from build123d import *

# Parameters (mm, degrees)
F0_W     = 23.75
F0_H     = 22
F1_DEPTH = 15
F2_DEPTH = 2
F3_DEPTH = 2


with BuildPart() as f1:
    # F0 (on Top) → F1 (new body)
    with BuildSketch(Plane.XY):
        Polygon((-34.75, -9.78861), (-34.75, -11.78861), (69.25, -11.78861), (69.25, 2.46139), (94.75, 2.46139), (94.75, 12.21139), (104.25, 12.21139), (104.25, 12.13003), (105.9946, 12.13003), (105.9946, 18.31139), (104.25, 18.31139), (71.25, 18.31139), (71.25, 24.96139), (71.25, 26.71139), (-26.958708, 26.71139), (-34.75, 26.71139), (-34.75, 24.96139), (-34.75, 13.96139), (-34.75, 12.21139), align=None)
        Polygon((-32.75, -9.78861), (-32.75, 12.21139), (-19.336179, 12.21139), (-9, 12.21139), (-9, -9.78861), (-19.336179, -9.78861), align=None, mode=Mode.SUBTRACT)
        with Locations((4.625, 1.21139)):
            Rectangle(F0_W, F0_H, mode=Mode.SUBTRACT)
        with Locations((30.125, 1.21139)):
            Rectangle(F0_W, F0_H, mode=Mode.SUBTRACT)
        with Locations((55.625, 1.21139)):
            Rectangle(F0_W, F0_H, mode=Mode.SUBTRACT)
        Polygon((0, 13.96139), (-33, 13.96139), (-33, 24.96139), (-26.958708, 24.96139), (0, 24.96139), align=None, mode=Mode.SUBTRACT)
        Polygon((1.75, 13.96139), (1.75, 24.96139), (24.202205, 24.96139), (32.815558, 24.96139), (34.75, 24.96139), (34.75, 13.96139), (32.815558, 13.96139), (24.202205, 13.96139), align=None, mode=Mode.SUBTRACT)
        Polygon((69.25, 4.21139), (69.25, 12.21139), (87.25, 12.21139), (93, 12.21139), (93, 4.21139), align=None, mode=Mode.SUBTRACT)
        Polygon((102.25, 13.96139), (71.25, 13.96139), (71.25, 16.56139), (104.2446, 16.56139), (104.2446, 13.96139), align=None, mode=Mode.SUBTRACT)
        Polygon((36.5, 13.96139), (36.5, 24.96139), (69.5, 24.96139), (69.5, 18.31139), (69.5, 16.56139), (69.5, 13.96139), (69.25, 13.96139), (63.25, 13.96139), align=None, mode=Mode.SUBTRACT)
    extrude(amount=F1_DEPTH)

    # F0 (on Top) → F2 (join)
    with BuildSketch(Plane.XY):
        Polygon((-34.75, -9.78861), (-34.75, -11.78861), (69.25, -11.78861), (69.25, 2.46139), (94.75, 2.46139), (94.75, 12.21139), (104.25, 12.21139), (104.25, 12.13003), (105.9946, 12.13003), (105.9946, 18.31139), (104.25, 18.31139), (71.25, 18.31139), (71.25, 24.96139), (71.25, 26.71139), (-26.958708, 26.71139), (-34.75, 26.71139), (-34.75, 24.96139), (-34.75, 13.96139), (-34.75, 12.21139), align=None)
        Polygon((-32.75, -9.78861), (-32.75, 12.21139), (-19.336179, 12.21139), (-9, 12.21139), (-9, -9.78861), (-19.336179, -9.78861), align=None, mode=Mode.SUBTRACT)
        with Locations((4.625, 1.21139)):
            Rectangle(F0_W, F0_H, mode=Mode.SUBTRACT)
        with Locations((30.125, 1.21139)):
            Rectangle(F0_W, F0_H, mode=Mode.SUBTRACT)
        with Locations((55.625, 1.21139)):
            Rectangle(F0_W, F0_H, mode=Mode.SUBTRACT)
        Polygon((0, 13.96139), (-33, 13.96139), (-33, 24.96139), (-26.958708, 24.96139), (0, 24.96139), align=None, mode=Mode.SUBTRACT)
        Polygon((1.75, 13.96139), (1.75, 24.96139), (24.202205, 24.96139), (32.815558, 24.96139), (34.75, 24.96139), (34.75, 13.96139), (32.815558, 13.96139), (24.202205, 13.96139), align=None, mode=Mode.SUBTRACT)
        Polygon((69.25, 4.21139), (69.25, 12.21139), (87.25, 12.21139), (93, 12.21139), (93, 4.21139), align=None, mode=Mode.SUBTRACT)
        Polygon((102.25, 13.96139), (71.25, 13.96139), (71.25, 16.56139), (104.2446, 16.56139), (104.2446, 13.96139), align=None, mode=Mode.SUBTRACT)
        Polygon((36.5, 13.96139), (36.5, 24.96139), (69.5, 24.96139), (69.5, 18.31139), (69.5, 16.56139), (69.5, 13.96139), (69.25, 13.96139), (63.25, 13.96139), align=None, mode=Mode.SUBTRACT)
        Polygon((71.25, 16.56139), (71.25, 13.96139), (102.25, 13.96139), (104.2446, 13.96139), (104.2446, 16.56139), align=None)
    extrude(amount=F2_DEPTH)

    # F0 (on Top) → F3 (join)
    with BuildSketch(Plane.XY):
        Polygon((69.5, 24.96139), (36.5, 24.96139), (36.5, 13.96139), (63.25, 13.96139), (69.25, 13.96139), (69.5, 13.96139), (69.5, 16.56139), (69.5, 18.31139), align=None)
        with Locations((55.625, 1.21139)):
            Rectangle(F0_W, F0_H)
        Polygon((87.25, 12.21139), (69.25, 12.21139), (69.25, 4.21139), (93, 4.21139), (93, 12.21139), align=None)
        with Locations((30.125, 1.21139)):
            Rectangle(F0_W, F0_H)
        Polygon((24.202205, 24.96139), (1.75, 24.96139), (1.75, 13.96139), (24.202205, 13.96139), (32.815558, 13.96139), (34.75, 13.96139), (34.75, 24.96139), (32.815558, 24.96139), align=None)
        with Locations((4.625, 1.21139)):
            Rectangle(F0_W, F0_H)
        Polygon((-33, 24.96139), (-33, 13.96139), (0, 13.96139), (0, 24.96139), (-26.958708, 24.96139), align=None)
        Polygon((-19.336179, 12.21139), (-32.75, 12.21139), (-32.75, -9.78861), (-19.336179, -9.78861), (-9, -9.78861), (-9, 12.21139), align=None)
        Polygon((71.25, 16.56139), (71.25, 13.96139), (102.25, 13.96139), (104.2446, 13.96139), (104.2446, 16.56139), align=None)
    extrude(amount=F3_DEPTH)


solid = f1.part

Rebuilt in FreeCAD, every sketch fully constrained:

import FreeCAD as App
import Part
import Sketcher


def add_polygon(sketch, points):
    """Adds a closed chain of lines whose ends are joined by coincident constraints."""
    first, n = sketch.GeometryCount, len(points)
    for a, b in zip(points, points[1:] + points[:1]):
        sketch.addGeometry(Part.LineSegment(App.Vector(*a, 0), App.Vector(*b, 0)), False)
    for i in range(n):
        sketch.addConstraint(Sketcher.Constraint("Coincident", first + i, 2, first + (i + 1) % n, 1))

doc = App.newDocument("Part")
body = doc.addObject("PartDesign::Body", "Body")

# Sketch on XY plane
sketch1 = body.newObject("Sketcher::SketchObject", "Sketch")
sketch1.AttachmentSupport = (doc.getObject("XY_Plane"), [""])
sketch1.MapMode = "FlatFace"
add_polygon(sketch1, [(-34.75, -11.78861), (69.25, -11.78861), (69.25, 2.46139), (94.75, 2.46139), (94.75, 12.21139), (104.25, 12.21139), (104.25, 12.13003), (105.9946, 12.13003), (105.9946, 18.31139), (71.25, 18.31139), (71.25, 26.71139), (-34.75, 26.71139)])  # lines 0-11
add_polygon(sketch1, [(-9, -9.78861), (-32.75, -9.78861), (-32.75, 12.21139), (-9, 12.21139)])  # lines 12-15
add_polygon(sketch1, [(16.5, -9.78861), (-7.25, -9.78861), (-7.25, 12.21139), (16.5, 12.21139)])  # lines 16-19
add_polygon(sketch1, [(42, -9.78861), (18.25, -9.78861), (18.25, 12.21139), (42, 12.21139)])  # lines 20-23
add_polygon(sketch1, [(67.5, -9.78861), (43.75, -9.78861), (43.75, 12.21139), (67.5, 12.21139)])  # lines 24-27
add_polygon(sketch1, [(0, 24.96139), (0, 13.96139), (-33, 13.96139), (-33, 24.96139)])  # lines 28-31
add_polygon(sketch1, [(34.75, 13.96139), (1.75, 13.96139), (1.75, 24.96139), (34.75, 24.96139)])  # lines 32-35
add_polygon(sketch1, [(93, 4.21139), (69.25, 4.21139), (69.25, 12.21139), (93, 12.21139)])  # lines 36-39
add_polygon(sketch1, [(104.2446, 13.96139), (71.25, 13.96139), (71.25, 16.56139), (104.2446, 16.56139)])  # lines 40-43
add_polygon(sketch1, [(69.5, 13.96139), (36.5, 13.96139), (36.5, 24.96139), (69.5, 24.96139)])  # lines 44-47
sketch1.addConstraint([
    Sketcher.Constraint("Horizontal", 0),
    Sketcher.Constraint("Vertical", 1),
    Sketcher.Constraint("Horizontal", 2),
    Sketcher.Constraint("Vertical", 3),
    Sketcher.Constraint("Horizontal", 4),
    Sketcher.Constraint("Vertical", 5),
    Sketcher.Constraint("Horizontal", 6),
    Sketcher.Constraint("Vertical", 7),
    Sketcher.Constraint("Horizontal", 8),
    Sketcher.Constraint("Vertical", 9),
    Sketcher.Constraint("Horizontal", 10),
    Sketcher.Constraint("Vertical", 11),
    Sketcher.Constraint("Horizontal", 12),
    Sketcher.Constraint("Vertical", 13),
    Sketcher.Constraint("Horizontal", 14),
    Sketcher.Constraint("Vertical", 15),
    Sketcher.Constraint("Horizontal", 16),
    Sketcher.Constraint("Vertical", 17),
    Sketcher.Constraint("Horizontal", 18),
    Sketcher.Constraint("Vertical", 19),
    Sketcher.Constraint("Horizontal", 20),
    Sketcher.Constraint("Vertical", 21),
    Sketcher.Constraint("Horizontal", 22),
    Sketcher.Constraint("Vertical", 23),
    Sketcher.Constraint("Horizontal", 24),
    Sketcher.Constraint("Vertical", 25),
    Sketcher.Constraint("Horizontal", 26),
    Sketcher.Constraint("Vertical", 27),
    Sketcher.Constraint("Vertical", 28),
    Sketcher.Constraint("Horizontal", 29),
    Sketcher.Constraint("Vertical", 30),
    Sketcher.Constraint("Horizontal", 31),
    Sketcher.Constraint("Horizontal", 32),
    Sketcher.Constraint("Vertical", 33),
    Sketcher.Constraint("Horizontal", 34),
    Sketcher.Constraint("Vertical", 35),
    Sketcher.Constraint("Horizontal", 36),
    Sketcher.Constraint("Vertical", 37),
    Sketcher.Constraint("Horizontal", 38),
    Sketcher.Constraint("Vertical", 39),
    Sketcher.Constraint("Horizontal", 40),
    Sketcher.Constraint("Vertical", 41),
    Sketcher.Constraint("Horizontal", 42),
    Sketcher.Constraint("Vertical", 43),
    Sketcher.Constraint("Horizontal", 44),
    Sketcher.Constraint("Vertical", 45),
    Sketcher.Constraint("Horizontal", 46),
    Sketcher.Constraint("Vertical", 47),
    Sketcher.Constraint("PointOnObject", 28, 2, -2),
    Sketcher.Constraint("Horizontal", 4, 2, 13, 2),
    Sketcher.Constraint("Horizontal", 15, 2, 16, 2),
    Sketcher.Constraint("Horizontal", 14, 2, 17, 2),
    Sketcher.Constraint("Horizontal", 19, 2, 20, 2),
    Sketcher.Constraint("Horizontal", 18, 2, 21, 2),
    Sketcher.Constraint("Horizontal", 23, 2, 24, 2),
    Sketcher.Constraint("Horizontal", 22, 2, 25, 2),
    Sketcher.Constraint("Horizontal", 29, 2, 32, 2),
    Sketcher.Constraint("Horizontal", 31, 2, 33, 2),
    Sketcher.Constraint("Horizontal", 26, 2, 37, 2),
    Sketcher.Constraint("Horizontal", 35, 2, 40, 2),
    Sketcher.Constraint("Horizontal", 43, 2, 44, 2),
    Sketcher.Constraint("Horizontal", 34, 2, 45, 2),
    Sketcher.Constraint("Vertical", 1, 2, 36, 2),
    Sketcher.Constraint("Vertical", 9, 2, 40, 2),
    Sketcher.Constraint("Equal", 14, 16),
    Sketcher.Constraint("Equal", 18, 20),
    Sketcher.Constraint("Equal", 22, 24),
    Sketcher.Constraint("Equal", 31, 32),
    Sketcher.Constraint("Equal", 26, 36),
    Sketcher.Constraint("Equal", 34, 44),
    Sketcher.Constraint("DistanceX", 0, 1, 0, 2, 104.0),
    Sketcher.Constraint("DistanceX", 10, 2, 10, 1, 106.0),
    Sketcher.Constraint("DistanceX", 29, 2, 29, 1, 33.0),
    Sketcher.Constraint("DistanceY", 13, 1, 13, 2, 22.0),
    Sketcher.Constraint("DistanceY", 28, 2, 28, 1, 11.0),
    Sketcher.Constraint("DistanceY", 37, 1, 37, 2, 8.0),
    Sketcher.Constraint("DistanceX", 2, 1, 2, 2, 25.5),
    Sketcher.Constraint("DistanceX", 4, 1, 4, 2, 9.5),
    Sketcher.Constraint("DistanceY", 9, 1, 9, 2, 8.4),
    Sketcher.Constraint("DistanceY", 11, 2, 11, 1, 38.5),
    Sketcher.Constraint("DistanceY", 41, 1, 41, 2, 2.6),
    Sketcher.Constraint("DistanceX", 14, 2, -1, 1, 9.0),
    Sketcher.Constraint("DistanceX", -1, 1, 22, 2, 42.0),
    Sketcher.Constraint("DistanceX", -1, 1, 38, 2, 93.0),
    Sketcher.Constraint("DistanceY", 0, 2, 3, 2, 24.0),
    Sketcher.Constraint("DistanceX", 17, 2, 32, 2, 9.0),
    Sketcher.Constraint("DistanceX", 34, 2, 25, 2, 9.0),
    Sketcher.Constraint("DistanceX", 26, 2, 47, 2, 2.0),
    Sketcher.Constraint("DistanceX", 12, 2, 12, 1, 23.75),
    Sketcher.Constraint("DistanceY", 1, 1, 1, 2, 14.25),
    Sketcher.Constraint("DistanceX", -1, 1, 18, 2, 16.5),
    Sketcher.Constraint("DistanceY", 1, 2, 40, 2, 11.5),
    Sketcher.Constraint("DistanceX", 42, 2, 7, 2, 1.75),
    Sketcher.Constraint("DistanceX", 6, 1, 6, 2, 1.7446),
    Sketcher.Constraint("DistanceY", 5, 2, 5, 1, 0.08136),
    Sketcher.Constraint("DistanceY", 0, 2, -1, 1, 11.78861),
])
pad1 = body.newObject("PartDesign::Pad", "Pad")
pad1.Profile = sketch1
pad1.Length = 15

# Sketch on XY plane
sketch2 = body.newObject("Sketcher::SketchObject", "Sketch001")
sketch2.AttachmentSupport = (doc.getObject("XY_Plane"), [""])
sketch2.MapMode = "FlatFace"
add_polygon(sketch2, [(-34.75, -11.78861), (69.25, -11.78861), (69.25, 2.46139), (94.75, 2.46139), (94.75, 12.21139), (104.25, 12.21139), (104.25, 12.13003), (105.9946, 12.13003), (105.9946, 18.31139), (71.25, 18.31139), (71.25, 26.71139), (-34.75, 26.71139)])  # lines 0-11
add_polygon(sketch2, [(-9, -9.78861), (-32.75, -9.78861), (-32.75, 12.21139), (-9, 12.21139)])  # lines 12-15
add_polygon(sketch2, [(16.5, -9.78861), (-7.25, -9.78861), (-7.25, 12.21139), (16.5, 12.21139)])  # lines 16-19
add_polygon(sketch2, [(42, -9.78861), (18.25, -9.78861), (18.25, 12.21139), (42, 12.21139)])  # lines 20-23
add_polygon(sketch2, [(67.5, -9.78861), (43.75, -9.78861), (43.75, 12.21139), (67.5, 12.21139)])  # lines 24-27
add_polygon(sketch2, [(0, 24.96139), (0, 13.96139), (-33, 13.96139), (-33, 24.96139)])  # lines 28-31
add_polygon(sketch2, [(34.75, 13.96139), (1.75, 13.96139), (1.75, 24.96139), (34.75, 24.96139)])  # lines 32-35
add_polygon(sketch2, [(93, 4.21139), (69.25, 4.21139), (69.25, 12.21139), (93, 12.21139)])  # lines 36-39
add_polygon(sketch2, [(69.5, 13.96139), (36.5, 13.96139), (36.5, 24.96139), (69.5, 24.96139)])  # lines 40-43
sketch2.addConstraint([
    Sketcher.Constraint("Horizontal", 0),
    Sketcher.Constraint("Vertical", 1),
    Sketcher.Constraint("Horizontal", 2),
    Sketcher.Constraint("Vertical", 3),
    Sketcher.Constraint("Horizontal", 4),
    Sketcher.Constraint("Vertical", 5),
    Sketcher.Constraint("Horizontal", 6),
    Sketcher.Constraint("Vertical", 7),
    Sketcher.Constraint("Horizontal", 8),
    Sketcher.Constraint("Vertical", 9),
    Sketcher.Constraint("Horizontal", 10),
    Sketcher.Constraint("Vertical", 11),
    Sketcher.Constraint("Horizontal", 12),
    Sketcher.Constraint("Vertical", 13),
    Sketcher.Constraint("Horizontal", 14),
    Sketcher.Constraint("Vertical", 15),
    Sketcher.Constraint("Horizontal", 16),
    Sketcher.Constraint("Vertical", 17),
    Sketcher.Constraint("Horizontal", 18),
    Sketcher.Constraint("Vertical", 19),
    Sketcher.Constraint("Horizontal", 20),
    Sketcher.Constraint("Vertical", 21),
    Sketcher.Constraint("Horizontal", 22),
    Sketcher.Constraint("Vertical", 23),
    Sketcher.Constraint("Horizontal", 24),
    Sketcher.Constraint("Vertical", 25),
    Sketcher.Constraint("Horizontal", 26),
    Sketcher.Constraint("Vertical", 27),
    Sketcher.Constraint("Vertical", 28),
    Sketcher.Constraint("Horizontal", 29),
    Sketcher.Constraint("Vertical", 30),
    Sketcher.Constraint("Horizontal", 31),
    Sketcher.Constraint("Horizontal", 32),
    Sketcher.Constraint("Vertical", 33),
    Sketcher.Constraint("Horizontal", 34),
    Sketcher.Constraint("Vertical", 35),
    Sketcher.Constraint("Horizontal", 36),
    Sketcher.Constraint("Vertical", 37),
    Sketcher.Constraint("Horizontal", 38),
    Sketcher.Constraint("Vertical", 39),
    Sketcher.Constraint("Horizontal", 40),
    Sketcher.Constraint("Vertical", 41),
    Sketcher.Constraint("Horizontal", 42),
    Sketcher.Constraint("Vertical", 43),
    Sketcher.Constraint("PointOnObject", 28, 2, -2),
    Sketcher.Constraint("Horizontal", 4, 2, 13, 2),
    Sketcher.Constraint("Horizontal", 15, 2, 16, 2),
    Sketcher.Constraint("Horizontal", 14, 2, 17, 2),
    Sketcher.Constraint("Horizontal", 19, 2, 20, 2),
    Sketcher.Constraint("Horizontal", 18, 2, 21, 2),
    Sketcher.Constraint("Horizontal", 23, 2, 24, 2),
    Sketcher.Constraint("Horizontal", 22, 2, 25, 2),
    Sketcher.Constraint("Horizontal", 29, 2, 32, 2),
    Sketcher.Constraint("Horizontal", 31, 2, 33, 2),
    Sketcher.Constraint("Horizontal", 26, 2, 37, 2),
    Sketcher.Constraint("Horizontal", 35, 2, 40, 2),
    Sketcher.Constraint("Horizontal", 34, 2, 41, 2),
    Sketcher.Constraint("Vertical", 1, 2, 36, 2),
    Sketcher.Constraint("Equal", 14, 16),
    Sketcher.Constraint("Equal", 18, 20),
    Sketcher.Constraint("Equal", 22, 24),
    Sketcher.Constraint("Equal", 31, 32),
    Sketcher.Constraint("Equal", 26, 36),
    Sketcher.Constraint("Equal", 34, 40),
    Sketcher.Constraint("DistanceX", 0, 1, 0, 2, 104.0),
    Sketcher.Constraint("DistanceX", 10, 2, 10, 1, 106.0),
    Sketcher.Constraint("DistanceX", 29, 2, 29, 1, 33.0),
    Sketcher.Constraint("DistanceY", 13, 1, 13, 2, 22.0),
    Sketcher.Constraint("DistanceY", 28, 2, 28, 1, 11.0),
    Sketcher.Constraint("DistanceY", 37, 1, 37, 2, 8.0),
    Sketcher.Constraint("DistanceX", 2, 1, 2, 2, 25.5),
    Sketcher.Constraint("DistanceX", 4, 1, 4, 2, 9.5),
    Sketcher.Constraint("DistanceY", 9, 1, 9, 2, 8.4),
    Sketcher.Constraint("DistanceY", 11, 2, 11, 1, 38.5),
    Sketcher.Constraint("DistanceX", 14, 2, -1, 1, 9.0),
    Sketcher.Constraint("DistanceX", -1, 1, 22, 2, 42.0),
    Sketcher.Constraint("DistanceX", -1, 1, 38, 2, 93.0),
    Sketcher.Constraint("DistanceY", 0, 2, 3, 2, 24.0),
    Sketcher.Constraint("DistanceX", 17, 2, 32, 2, 9.0),
    Sketcher.Constraint("DistanceX", 34, 2, 25, 2, 9.0),
    Sketcher.Constraint("DistanceX", 26, 2, 42, 2, 2.0),
    Sketcher.Constraint("DistanceX", 12, 2, 12, 1, 23.75),
    Sketcher.Constraint("DistanceY", 1, 1, 1, 2, 14.25),
    Sketcher.Constraint("DistanceX", -1, 1, 18, 2, 16.5),
    Sketcher.Constraint("DistanceY", 17, 2, 28, 2, 1.75),
    Sketcher.Constraint("DistanceX", 6, 1, 6, 2, 1.7446),
    Sketcher.Constraint("DistanceY", 5, 2, 5, 1, 0.08136),
    Sketcher.Constraint("DistanceY", 0, 2, -1, 1, 11.78861),
])
pad2 = body.newObject("PartDesign::Pad", "Pad001")
pad2.Profile = sketch2
pad2.Length = 2

# Sketch on XY plane
sketch3 = body.newObject("Sketcher::SketchObject", "Sketch002")
sketch3.AttachmentSupport = (doc.getObject("XY_Plane"), [""])
sketch3.MapMode = "FlatFace"
add_polygon(sketch3, [(69.5, 24.96139), (36.5, 24.96139), (36.5, 13.96139), (69.5, 13.96139)])  # lines 0-3
add_polygon(sketch3, [(43.75, 12.21139), (43.75, -9.78861), (67.5, -9.78861), (67.5, 12.21139)])  # lines 4-7
add_polygon(sketch3, [(69.25, 12.21139), (69.25, 4.21139), (93, 4.21139), (93, 12.21139)])  # lines 8-11
add_polygon(sketch3, [(18.25, 12.21139), (18.25, -9.78861), (42, -9.78861), (42, 12.21139)])  # lines 12-15
add_polygon(sketch3, [(1.75, 24.96139), (1.75, 13.96139), (34.75, 13.96139), (34.75, 24.96139)])  # lines 16-19
add_polygon(sketch3, [(-7.25, 12.21139), (-7.25, -9.78861), (16.5, -9.78861), (16.5, 12.21139)])  # lines 20-23
add_polygon(sketch3, [(-33, 24.96139), (-33, 13.96139), (0, 13.96139), (0, 24.96139)])  # lines 24-27
add_polygon(sketch3, [(-32.75, 12.21139), (-32.75, -9.78861), (-9, -9.78861), (-9, 12.21139)])  # lines 28-31
add_polygon(sketch3, [(71.25, 16.56139), (71.25, 13.96139), (104.2446, 13.96139), (104.2446, 16.56139)])  # lines 32-35
sketch3.addConstraint([
    Sketcher.Constraint("Horizontal", 0),
    Sketcher.Constraint("Vertical", 1),
    Sketcher.Constraint("Horizontal", 2),
    Sketcher.Constraint("Vertical", 3),
    Sketcher.Constraint("Vertical", 4),
    Sketcher.Constraint("Horizontal", 5),
    Sketcher.Constraint("Vertical", 6),
    Sketcher.Constraint("Horizontal", 7),
    Sketcher.Constraint("Vertical", 8),
    Sketcher.Constraint("Horizontal", 9),
    Sketcher.Constraint("Vertical", 10),
    Sketcher.Constraint("Horizontal", 11),
    Sketcher.Constraint("Vertical", 12),
    Sketcher.Constraint("Horizontal", 13),
    Sketcher.Constraint("Vertical", 14),
    Sketcher.Constraint("Horizontal", 15),
    Sketcher.Constraint("Vertical", 16),
    Sketcher.Constraint("Horizontal", 17),
    Sketcher.Constraint("Vertical", 18),
    Sketcher.Constraint("Horizontal", 19),
    Sketcher.Constraint("Vertical", 20),
    Sketcher.Constraint("Horizontal", 21),
    Sketcher.Constraint("Vertical", 22),
    Sketcher.Constraint("Horizontal", 23),
    Sketcher.Constraint("Vertical", 24),
    Sketcher.Constraint("Horizontal", 25),
    Sketcher.Constraint("Vertical", 26),
    Sketcher.Constraint("Horizontal", 27),
    Sketcher.Constraint("Vertical", 28),
    Sketcher.Constraint("Horizontal", 29),
    Sketcher.Constraint("Vertical", 30),
    Sketcher.Constraint("Horizontal", 31),
    Sketcher.Constraint("Vertical", 32),
    Sketcher.Constraint("Horizontal", 33),
    Sketcher.Constraint("Vertical", 34),
    Sketcher.Constraint("Horizontal", 35),
    Sketcher.Constraint("PointOnObject", 25, 2, -2),
    Sketcher.Constraint("Horizontal", 7, 2, 10, 2),
    Sketcher.Constraint("Horizontal", 5, 2, 12, 2),
    Sketcher.Constraint("Horizontal", 11, 2, 14, 2),
    Sketcher.Constraint("Horizontal", 2, 2, 16, 2),
    Sketcher.Constraint("Horizontal", 3, 2, 18, 2),
    Sketcher.Constraint("Horizontal", 13, 2, 20, 2),
    Sketcher.Constraint("Horizontal", 15, 2, 22, 2),
    Sketcher.Constraint("Horizontal", 17, 2, 24, 2),
    Sketcher.Constraint("Horizontal", 19, 2, 26, 2),
    Sketcher.Constraint("Horizontal", 21, 2, 28, 2),
    Sketcher.Constraint("Horizontal", 23, 2, 30, 2),
    Sketcher.Constraint("Horizontal", 25, 2, 32, 2),
    Sketcher.Constraint("Equal", 7, 9),
    Sketcher.Constraint("Equal", 11, 13),
    Sketcher.Constraint("Equal", 2, 17),
    Sketcher.Constraint("Equal", 15, 21),
    Sketcher.Constraint("Equal", 19, 25),
    Sketcher.Constraint("Equal", 23, 29),
    Sketcher.Constraint("DistanceX", 0, 2, 0, 1, 33.0),
    Sketcher.Constraint("DistanceY", 1, 2, 1, 1, 11.0),
    Sketcher.Constraint("DistanceY", 4, 2, 4, 1, 22.0),
    Sketcher.Constraint("DistanceY", 8, 2, 8, 1, 8.0),
    Sketcher.Constraint("DistanceY", 32, 2, 32, 1, 2.6),
    Sketcher.Constraint("DistanceX", -1, 1, 9, 2, 93.0),
    Sketcher.Constraint("DistanceX", -1, 1, 13, 2, 42.0),
    Sketcher.Constraint("DistanceX", 29, 2, -1, 1, 9.0),
    Sketcher.Constraint("DistanceX", 5, 2, 2, 2, 2.0),
    Sketcher.Constraint("DistanceX", 17, 2, 7, 2, 9.0),
    Sketcher.Constraint("DistanceX", 20, 2, 16, 2, 9.0),
    Sketcher.Constraint("DistanceX", 11, 2, 32, 2, 2.0),
    Sketcher.Constraint("DistanceX", 5, 1, 5, 2, 23.75),
    Sketcher.Constraint("DistanceX", -1, 1, 0, 2, 36.5),
    Sketcher.Constraint("DistanceY", 4, 2, 1, 2, 23.75),
    Sketcher.Constraint("DistanceX", 33, 1, 33, 2, 32.9946),
    Sketcher.Constraint("DistanceY", -1, 1, 0, 2, 24.96139),
])
pad3 = body.newObject("PartDesign::Pad", "Pad002")
pad3.Profile = sketch3
pad3.Length = 2

doc.recompute()
